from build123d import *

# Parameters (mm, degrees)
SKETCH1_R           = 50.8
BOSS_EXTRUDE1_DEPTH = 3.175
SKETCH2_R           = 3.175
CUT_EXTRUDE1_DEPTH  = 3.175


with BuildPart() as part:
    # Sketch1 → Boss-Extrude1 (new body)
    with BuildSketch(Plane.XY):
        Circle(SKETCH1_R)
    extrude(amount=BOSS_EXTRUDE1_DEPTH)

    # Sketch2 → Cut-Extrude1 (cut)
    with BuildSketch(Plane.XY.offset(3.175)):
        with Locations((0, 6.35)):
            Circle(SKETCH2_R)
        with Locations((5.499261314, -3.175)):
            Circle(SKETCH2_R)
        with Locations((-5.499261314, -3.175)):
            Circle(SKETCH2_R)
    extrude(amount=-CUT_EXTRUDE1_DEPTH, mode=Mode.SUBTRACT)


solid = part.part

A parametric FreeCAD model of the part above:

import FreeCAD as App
import Part
import Sketcher
Q = App.Units.Quantity

doc = App.newDocument("Part")
body = doc.addObject("PartDesign::Body", "Body")

# Sketch on XY plane
sketch1 = body.newObject("Sketcher::SketchObject", "Sketch")
sketch1.AttachmentSupport = (doc.getObject("XY_Plane"), [""])
sketch1.MapMode = "FlatFace"
sketch1.addGeometry(Part.Circle(App.Vector(0, 0, 0), App.Vector(0, 0, 1), 51), False)
sketch1.addConstraint(Sketcher.Constraint("Coincident", 0, 3, -1, 1))
sketch1.addConstraint(Sketcher.Constraint("Diameter", 0, Q("4 in")))
pad1 = body.newObject("PartDesign::Pad", "Pad")
pad1.Profile = sketch1
pad1.Length = Q("0.125 in")

# Sketch on XY plane
sketch2 = body.newObject("Sketcher::SketchObject", "Sketch001")
sketch2.AttachmentSupport = (doc.getObject("XY_Plane"), [""])
sketch2.MapMode = "FlatFace"
sketch2.AttachmentOffset = App.Placement(App.Vector(0, 0, 0.125 * 25.4), App.Rotation())
sketch2.addGeometry(Part.Circle(App.Vector(0, 6.3, 0), App.Vector(0, 0, 1), 3.2), False)
sketch2.addGeometry(Part.Circle(App.Vector(5.5, -3.2, 0), App.Vector(0, 0, 1), 3.2), False)
sketch2.addGeometry(Part.Circle(App.Vector(-5.5, -3.2, 0), App.Vector(0, 0, 1), 3.2), False)
sketch2.addConstraint(Sketcher.Constraint("Equal", 0, 1))
sketch2.addConstraint(Sketcher.Constraint("Equal", 1, 2))
sketch2.addConstraint(Sketcher.Constraint("Symmetric", 1, 3, 2, 3, -2))
sketch2.addConstraint(Sketcher.Constraint("PointOnObject", 0, 3, -2))
sketch2.addConstraint(Sketcher.Constraint("Diameter", 0, Q("0.25 in")))
sketch2.addConstraint(Sketcher.Constraint("DistanceY", -1, 1, 0, 3, Q("0.25 in")))
sketch2.addConstraint(Sketcher.Constraint("DistanceY", 1, 3, -1, 1, Q("0.125 in")))
sketch2.addConstraint(Sketcher.Constraint("DistanceX", -1, 1, 1, 3, Q("5.499261 mm")))
pocket1 = body.newObject("PartDesign::Pocket", "Pocket")
pocket1.Profile = sketch2
pocket1.Length = Q("0.125 in")

doc.recompute()
